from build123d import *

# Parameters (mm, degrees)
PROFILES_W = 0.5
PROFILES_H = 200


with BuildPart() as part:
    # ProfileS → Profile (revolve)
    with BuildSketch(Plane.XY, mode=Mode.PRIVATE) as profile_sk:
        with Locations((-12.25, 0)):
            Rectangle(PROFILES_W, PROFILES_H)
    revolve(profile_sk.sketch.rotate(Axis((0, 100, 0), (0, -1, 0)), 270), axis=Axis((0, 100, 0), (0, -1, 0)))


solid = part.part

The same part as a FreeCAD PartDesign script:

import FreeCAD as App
import Part
import Sketcher

doc = App.newDocument("Part")
body = doc.addObject("PartDesign::Body", "Body")

sketch1 = body.newObject("Sketcher::SketchObject", "Sketch")
sketch1.AttachmentSupport = (doc.getObject("XY_Plane"), [""])
sketch1.MapMode = "FlatFace"
sketch1.addGeometry([
    Part.LineSegment(App.Vector(-12.5, 100, 0), App.Vector(-12.5, -100, 0)),
    Part.LineSegment(App.Vector(-12.5, -100, 0), App.Vector(-12, -100, 0)),
    Part.LineSegment(App.Vector(-12, -100, 0), App.Vector(-12, 100, 0)),
    Part.LineSegment(App.Vector(-12, 100, 0), App.Vector(-12.5, 100, 0)),
], False)
sketch1.addConstraint([
    Sketcher.Constraint("Coincident", 0, 2, 1, 1),
    Sketcher.Constraint("Coincident", 1, 2, 2, 1),
    Sketcher.Constraint("Coincident", 2, 2, 3, 1),
    Sketcher.Constraint("Coincident", 3, 2, 0, 1),
    Sketcher.Constraint("Vertical", 0),
    Sketcher.Constraint("Horizontal", 1),
    Sketcher.Constraint("Vertical", 2),
    Sketcher.Constraint("Horizontal", 3),
    Sketcher.Constraint("DistanceY", 0, 2, 0, 1, 200.0),
    Sketcher.Constraint("DistanceX", 1, 1, 1, 2, 0.5),
    Sketcher.Constraint("DistanceY", 0, 2, -1, 1, 100.0),
    Sketcher.Constraint("DistanceX", 1, 2, -1, 1, 12.0),
])
revolution = body.newObject("PartDesign::Revolution", "Revolution")
revolution.Profile = sketch1
revolution.ReferenceAxis = (sketch1, ["V_Axis"])
revolution.Angle = 360

doc.recompute()
